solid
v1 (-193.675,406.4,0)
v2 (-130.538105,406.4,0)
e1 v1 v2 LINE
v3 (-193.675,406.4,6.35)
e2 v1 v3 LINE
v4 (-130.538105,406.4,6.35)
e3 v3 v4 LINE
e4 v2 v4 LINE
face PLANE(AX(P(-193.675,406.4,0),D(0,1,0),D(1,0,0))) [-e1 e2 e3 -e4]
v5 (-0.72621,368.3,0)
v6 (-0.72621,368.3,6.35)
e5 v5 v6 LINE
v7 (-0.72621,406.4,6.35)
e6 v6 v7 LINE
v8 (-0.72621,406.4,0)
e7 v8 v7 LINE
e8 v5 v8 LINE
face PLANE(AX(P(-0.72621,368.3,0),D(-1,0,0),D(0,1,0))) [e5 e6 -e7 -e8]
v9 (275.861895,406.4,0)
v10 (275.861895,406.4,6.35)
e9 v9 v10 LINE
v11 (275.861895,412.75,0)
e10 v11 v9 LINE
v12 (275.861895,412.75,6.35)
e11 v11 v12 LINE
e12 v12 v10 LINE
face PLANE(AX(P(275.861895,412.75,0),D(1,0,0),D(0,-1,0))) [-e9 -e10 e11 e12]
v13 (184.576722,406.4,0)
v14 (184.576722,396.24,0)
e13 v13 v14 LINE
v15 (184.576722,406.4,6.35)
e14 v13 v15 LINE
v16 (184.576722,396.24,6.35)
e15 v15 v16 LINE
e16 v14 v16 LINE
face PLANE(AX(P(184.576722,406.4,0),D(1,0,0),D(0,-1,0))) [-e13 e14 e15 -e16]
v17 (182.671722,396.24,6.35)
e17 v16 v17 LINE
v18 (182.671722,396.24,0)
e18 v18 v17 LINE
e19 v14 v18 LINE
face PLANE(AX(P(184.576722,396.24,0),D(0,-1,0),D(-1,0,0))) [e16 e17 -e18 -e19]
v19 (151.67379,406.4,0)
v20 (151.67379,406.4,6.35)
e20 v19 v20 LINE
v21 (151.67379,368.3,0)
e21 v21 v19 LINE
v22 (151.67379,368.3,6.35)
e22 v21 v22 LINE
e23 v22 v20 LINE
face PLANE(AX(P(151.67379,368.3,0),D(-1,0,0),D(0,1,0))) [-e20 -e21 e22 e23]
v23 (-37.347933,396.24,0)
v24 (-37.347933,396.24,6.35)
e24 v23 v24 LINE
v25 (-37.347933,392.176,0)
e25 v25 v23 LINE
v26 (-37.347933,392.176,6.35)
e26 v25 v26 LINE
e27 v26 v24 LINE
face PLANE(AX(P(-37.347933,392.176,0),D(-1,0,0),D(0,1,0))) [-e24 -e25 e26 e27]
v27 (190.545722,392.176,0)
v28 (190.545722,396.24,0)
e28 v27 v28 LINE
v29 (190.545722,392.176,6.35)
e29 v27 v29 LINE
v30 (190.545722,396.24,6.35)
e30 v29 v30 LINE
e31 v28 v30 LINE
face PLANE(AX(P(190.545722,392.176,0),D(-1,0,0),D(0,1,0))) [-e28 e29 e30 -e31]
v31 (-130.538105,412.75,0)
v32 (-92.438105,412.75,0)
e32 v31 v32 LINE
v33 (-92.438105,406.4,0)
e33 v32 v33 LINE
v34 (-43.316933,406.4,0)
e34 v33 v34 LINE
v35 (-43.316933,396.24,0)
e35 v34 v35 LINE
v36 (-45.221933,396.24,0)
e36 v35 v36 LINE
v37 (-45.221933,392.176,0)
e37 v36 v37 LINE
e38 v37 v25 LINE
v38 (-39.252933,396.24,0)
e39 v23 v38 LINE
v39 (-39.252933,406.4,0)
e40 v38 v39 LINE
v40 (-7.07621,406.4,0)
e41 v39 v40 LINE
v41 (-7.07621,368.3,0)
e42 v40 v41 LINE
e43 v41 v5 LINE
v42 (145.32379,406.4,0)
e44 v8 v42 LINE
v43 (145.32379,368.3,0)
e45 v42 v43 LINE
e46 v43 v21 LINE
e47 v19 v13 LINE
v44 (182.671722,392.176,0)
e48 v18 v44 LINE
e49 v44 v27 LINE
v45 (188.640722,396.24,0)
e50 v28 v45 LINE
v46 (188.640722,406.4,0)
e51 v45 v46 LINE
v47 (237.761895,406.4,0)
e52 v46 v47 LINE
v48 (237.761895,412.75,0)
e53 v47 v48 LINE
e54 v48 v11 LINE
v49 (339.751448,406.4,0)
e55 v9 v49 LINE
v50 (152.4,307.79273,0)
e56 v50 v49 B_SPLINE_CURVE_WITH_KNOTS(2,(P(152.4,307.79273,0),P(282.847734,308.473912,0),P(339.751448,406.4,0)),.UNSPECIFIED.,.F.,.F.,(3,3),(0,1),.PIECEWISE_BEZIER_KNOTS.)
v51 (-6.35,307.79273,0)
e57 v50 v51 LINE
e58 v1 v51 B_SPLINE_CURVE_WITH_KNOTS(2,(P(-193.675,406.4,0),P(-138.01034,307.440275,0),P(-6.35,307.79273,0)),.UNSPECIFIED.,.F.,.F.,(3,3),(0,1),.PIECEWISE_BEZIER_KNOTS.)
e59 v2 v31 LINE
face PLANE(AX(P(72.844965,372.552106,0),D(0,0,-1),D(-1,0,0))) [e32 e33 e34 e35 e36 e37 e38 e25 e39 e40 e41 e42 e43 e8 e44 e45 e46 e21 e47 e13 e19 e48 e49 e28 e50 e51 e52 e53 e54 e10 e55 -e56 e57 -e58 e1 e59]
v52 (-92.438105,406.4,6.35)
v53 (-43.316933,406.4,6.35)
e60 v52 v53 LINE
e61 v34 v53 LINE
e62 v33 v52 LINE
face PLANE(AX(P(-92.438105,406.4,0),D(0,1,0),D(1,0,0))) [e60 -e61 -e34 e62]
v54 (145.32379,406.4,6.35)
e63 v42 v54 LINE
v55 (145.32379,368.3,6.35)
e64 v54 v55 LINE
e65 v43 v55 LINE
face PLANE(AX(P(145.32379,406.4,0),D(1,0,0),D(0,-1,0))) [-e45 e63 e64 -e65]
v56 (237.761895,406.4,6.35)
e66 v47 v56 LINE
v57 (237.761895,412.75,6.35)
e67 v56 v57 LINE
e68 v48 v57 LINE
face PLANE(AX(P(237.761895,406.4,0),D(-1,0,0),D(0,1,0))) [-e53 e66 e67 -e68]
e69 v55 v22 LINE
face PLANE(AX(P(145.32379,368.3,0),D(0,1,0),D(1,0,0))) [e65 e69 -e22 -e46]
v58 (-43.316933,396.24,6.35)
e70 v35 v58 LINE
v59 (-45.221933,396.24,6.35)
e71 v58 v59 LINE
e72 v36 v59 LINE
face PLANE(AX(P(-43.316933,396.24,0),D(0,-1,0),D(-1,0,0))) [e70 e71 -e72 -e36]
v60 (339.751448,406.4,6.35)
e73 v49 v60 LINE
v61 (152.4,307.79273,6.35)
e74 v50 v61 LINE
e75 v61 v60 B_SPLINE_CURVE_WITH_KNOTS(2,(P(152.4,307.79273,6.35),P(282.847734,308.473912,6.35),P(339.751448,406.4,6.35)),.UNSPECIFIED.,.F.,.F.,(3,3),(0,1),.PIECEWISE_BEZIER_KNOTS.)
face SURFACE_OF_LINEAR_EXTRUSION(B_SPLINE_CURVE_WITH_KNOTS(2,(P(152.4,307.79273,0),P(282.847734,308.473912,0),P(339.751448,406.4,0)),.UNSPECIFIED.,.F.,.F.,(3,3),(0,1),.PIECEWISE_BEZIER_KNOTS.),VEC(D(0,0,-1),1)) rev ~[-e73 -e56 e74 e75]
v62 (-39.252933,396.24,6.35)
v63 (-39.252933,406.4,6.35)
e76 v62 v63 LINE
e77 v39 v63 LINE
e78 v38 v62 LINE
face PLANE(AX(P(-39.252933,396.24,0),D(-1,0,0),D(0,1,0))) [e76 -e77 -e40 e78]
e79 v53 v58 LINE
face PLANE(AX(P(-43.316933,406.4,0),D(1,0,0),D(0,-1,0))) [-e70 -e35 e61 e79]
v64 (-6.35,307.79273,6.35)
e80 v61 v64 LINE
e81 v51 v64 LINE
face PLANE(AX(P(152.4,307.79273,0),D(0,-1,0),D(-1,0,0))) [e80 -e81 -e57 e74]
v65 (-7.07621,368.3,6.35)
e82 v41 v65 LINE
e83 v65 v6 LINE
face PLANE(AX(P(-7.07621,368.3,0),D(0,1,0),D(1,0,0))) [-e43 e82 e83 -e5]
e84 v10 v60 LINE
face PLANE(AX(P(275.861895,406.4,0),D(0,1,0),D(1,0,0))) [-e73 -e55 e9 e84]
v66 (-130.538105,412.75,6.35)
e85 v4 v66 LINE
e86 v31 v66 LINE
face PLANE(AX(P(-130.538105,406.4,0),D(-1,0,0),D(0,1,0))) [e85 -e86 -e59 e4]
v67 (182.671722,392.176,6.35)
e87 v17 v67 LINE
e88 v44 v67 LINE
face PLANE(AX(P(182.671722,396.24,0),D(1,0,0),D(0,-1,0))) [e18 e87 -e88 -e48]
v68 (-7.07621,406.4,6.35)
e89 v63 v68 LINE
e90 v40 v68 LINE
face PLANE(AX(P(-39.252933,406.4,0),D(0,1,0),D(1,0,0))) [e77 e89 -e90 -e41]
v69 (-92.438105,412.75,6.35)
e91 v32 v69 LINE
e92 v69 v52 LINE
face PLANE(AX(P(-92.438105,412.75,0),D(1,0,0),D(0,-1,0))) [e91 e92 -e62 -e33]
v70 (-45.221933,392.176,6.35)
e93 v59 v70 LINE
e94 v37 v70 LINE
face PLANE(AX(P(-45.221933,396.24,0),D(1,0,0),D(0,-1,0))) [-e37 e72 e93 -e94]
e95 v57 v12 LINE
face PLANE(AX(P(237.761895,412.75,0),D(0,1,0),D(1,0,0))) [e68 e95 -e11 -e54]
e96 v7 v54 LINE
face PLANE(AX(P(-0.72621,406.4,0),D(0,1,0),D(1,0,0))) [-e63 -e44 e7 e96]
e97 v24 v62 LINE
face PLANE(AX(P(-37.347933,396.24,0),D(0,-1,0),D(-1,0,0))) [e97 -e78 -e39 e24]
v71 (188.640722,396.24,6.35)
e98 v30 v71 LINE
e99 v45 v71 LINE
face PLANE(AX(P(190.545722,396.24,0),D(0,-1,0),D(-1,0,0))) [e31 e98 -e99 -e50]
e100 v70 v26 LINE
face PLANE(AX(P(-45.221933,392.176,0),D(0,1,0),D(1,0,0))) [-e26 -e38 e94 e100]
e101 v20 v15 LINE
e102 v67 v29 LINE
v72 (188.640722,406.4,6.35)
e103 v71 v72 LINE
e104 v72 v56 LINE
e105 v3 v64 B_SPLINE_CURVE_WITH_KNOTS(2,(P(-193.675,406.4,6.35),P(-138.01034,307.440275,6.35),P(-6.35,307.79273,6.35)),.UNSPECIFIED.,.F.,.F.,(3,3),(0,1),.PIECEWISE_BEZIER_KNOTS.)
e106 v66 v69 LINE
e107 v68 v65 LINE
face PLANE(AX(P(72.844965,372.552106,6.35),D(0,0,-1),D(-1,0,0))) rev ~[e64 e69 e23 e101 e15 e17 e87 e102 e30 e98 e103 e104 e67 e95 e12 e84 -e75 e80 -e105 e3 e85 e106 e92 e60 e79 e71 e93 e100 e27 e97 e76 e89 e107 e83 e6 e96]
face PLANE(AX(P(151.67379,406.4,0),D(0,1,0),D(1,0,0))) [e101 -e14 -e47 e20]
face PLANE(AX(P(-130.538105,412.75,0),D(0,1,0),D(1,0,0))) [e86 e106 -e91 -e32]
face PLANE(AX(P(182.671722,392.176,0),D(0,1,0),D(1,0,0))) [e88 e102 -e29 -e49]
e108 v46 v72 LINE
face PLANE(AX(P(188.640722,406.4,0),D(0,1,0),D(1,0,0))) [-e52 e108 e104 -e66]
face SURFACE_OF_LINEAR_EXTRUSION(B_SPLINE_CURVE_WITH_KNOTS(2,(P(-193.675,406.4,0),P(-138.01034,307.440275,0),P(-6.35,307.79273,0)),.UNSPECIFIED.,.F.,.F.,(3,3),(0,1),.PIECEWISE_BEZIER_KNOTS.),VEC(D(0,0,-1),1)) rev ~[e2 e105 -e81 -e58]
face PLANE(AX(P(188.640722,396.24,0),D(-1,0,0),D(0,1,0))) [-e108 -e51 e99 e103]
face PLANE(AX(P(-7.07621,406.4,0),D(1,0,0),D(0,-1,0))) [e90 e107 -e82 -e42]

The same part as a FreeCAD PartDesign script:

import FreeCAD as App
import Part
import Sketcher

V = App.Vector
Q = App.Units.Quantity

doc = App.newDocument("Part")
body = doc.addObject("PartDesign::Body", "Body")

# Sketch on XY plane
sketch1 = body.newObject("Sketcher::SketchObject", "Sketch")
sketch1.AttachmentSupport = (doc.getObject("XY_Plane"), [""])
sketch1.MapMode = "FlatFace"
sketch1.addGeometry([
    Part.LineSegment(V(-130.538105, 406.4, 0), V(-193.675, 406.4, 0)),  # 0
    Part.BSplineCurve([V(-193.675, 406.4, 0), V(-138.01034, 307.440275, 0), V(-6.35, 307.79273, 0)], [3, 3], [0, 1], False, 2, [1, 1, 1], False),  # 1
    Part.LineSegment(V(-6.35, 307.79273, 0), V(152.4, 307.79273, 0)),  # 2
    Part.BSplineCurve([V(152.4, 307.79273, 0), V(282.847734, 308.473912, 0), V(339.751448, 406.4, 0)], [3, 3], [0, 1], False, 2, [1, 1, 1], False),  # 3
    Part.LineSegment(V(339.751448, 406.4, 0), V(275.861895, 406.4, 0)),  # 4
    Part.LineSegment(V(275.861895, 406.4, 0), V(275.861895, 412.75, 0)),  # 5
    Part.LineSegment(V(275.861895, 412.75, 0), V(237.761895, 412.75, 0)),  # 6
    Part.LineSegment(V(237.761895, 412.75, 0), V(237.761895, 406.4, 0)),  # 7
    Part.LineSegment(V(237.761895, 406.4, 0), V(188.640722, 406.4, 0)),  # 8
    Part.LineSegment(V(188.640722, 406.4, 0), V(188.640722, 396.24, 0)),  # 9
    Part.LineSegment(V(188.640722, 396.24, 0), V(190.545722, 396.24, 0)),  # 10
    Part.LineSegment(V(190.545722, 396.24, 0), V(190.545722, 392.176, 0)),  # 11
    Part.LineSegment(V(190.545722, 392.176, 0), V(182.671722, 392.176, 0)),  # 12
    Part.LineSegment(V(182.671722, 392.176, 0), V(182.671722, 396.24, 0)),  # 13
    Part.LineSegment(V(182.671722, 396.24, 0), V(184.576722, 396.24, 0)),  # 14
    Part.LineSegment(V(184.576722, 396.24, 0), V(184.576722, 406.4, 0)),  # 15
    Part.LineSegment(V(184.576722, 406.4, 0), V(151.67379, 406.4, 0)),  # 16
    Part.LineSegment(V(151.67379, 406.4, 0), V(151.67379, 368.3, 0)),  # 17
    Part.LineSegment(V(151.67379, 368.3, 0), V(145.32379, 368.3, 0)),  # 18
    Part.LineSegment(V(145.32379, 368.3, 0), V(145.32379, 406.4, 0)),  # 19
    Part.LineSegment(V(145.32379, 406.4, 0), V(-0.72621, 406.4, 0)),  # 20
    Part.LineSegment(V(-0.72621, 406.4, 0), V(-0.72621, 368.3, 0)),  # 21
    Part.LineSegment(V(-0.72621, 368.3, 0), V(-7.07621, 368.3, 0)),  # 22
    Part.LineSegment(V(-7.07621, 368.3, 0), V(-7.07621, 406.4, 0)),  # 23
    Part.LineSegment(V(-7.07621, 406.4, 0), V(-39.252933, 406.4, 0)),  # 24
    Part.LineSegment(V(-39.252933, 406.4, 0), V(-39.252933, 396.24, 0)),  # 25
    Part.LineSegment(V(-39.252933, 396.24, 0), V(-37.347933, 396.24, 0)),  # 26
    Part.LineSegment(V(-37.347933, 396.24, 0), V(-37.347933, 392.176, 0)),  # 27
    Part.LineSegment(V(-37.347933, 392.176, 0), V(-45.221933, 392.176, 0)),  # 28
    Part.LineSegment(V(-45.221933, 392.176, 0), V(-45.221933, 396.24, 0)),  # 29
    Part.LineSegment(V(-45.221933, 396.24, 0), V(-43.316933, 396.24, 0)),  # 30
    Part.LineSegment(V(-43.316933, 396.24, 0), V(-43.316933, 406.4, 0)),  # 31
    Part.LineSegment(V(-43.316933, 406.4, 0), V(-92.438105, 406.4, 0)),  # 32
    Part.LineSegment(V(-92.438105, 406.4, 0), V(-92.438105, 412.75, 0)),  # 33
    Part.LineSegment(V(-92.438105, 412.75, 0), V(-130.538105, 412.75, 0)),  # 34
    Part.LineSegment(V(-130.538105, 412.75, 0), V(-130.538105, 406.4, 0)),  # 35
], False)
sketch1.addConstraint([
    Sketcher.Constraint("Block", 1),
    Sketcher.Constraint("Block", 3),
    Sketcher.Constraint("Coincident", 0, 2, 1, 1),
    Sketcher.Constraint("Coincident", 1, 2, 2, 1),
    Sketcher.Constraint("Coincident", 2, 2, 3, 1),
    Sketcher.Constraint("Coincident", 3, 2, 4, 1),
    Sketcher.Constraint("Coincident", 4, 2, 5, 1),
    Sketcher.Constraint("Coincident", 5, 2, 6, 1),
    Sketcher.Constraint("Coincident", 6, 2, 7, 1),
    Sketcher.Constraint("Coincident", 7, 2, 8, 1),
    Sketcher.Constraint("Coincident", 8, 2, 9, 1),
    Sketcher.Constraint("Coincident", 9, 2, 10, 1),
    Sketcher.Constraint("Coincident", 10, 2, 11, 1),
    Sketcher.Constraint("Coincident", 11, 2, 12, 1),
    Sketcher.Constraint("Coincident", 12, 2, 13, 1),
    Sketcher.Constraint("Coincident", 13, 2, 14, 1),
    Sketcher.Constraint("Coincident", 14, 2, 15, 1),
    Sketcher.Constraint("Coincident", 15, 2, 16, 1),
    Sketcher.Constraint("Coincident", 16, 2, 17, 1),
    Sketcher.Constraint("Coincident", 17, 2, 18, 1),
    Sketcher.Constraint("Coincident", 18, 2, 19, 1),
    Sketcher.Constraint("Coincident", 19, 2, 20, 1),
    Sketcher.Constraint("Coincident", 20, 2, 21, 1),
    Sketcher.Constraint("Coincident", 21, 2, 22, 1),
    Sketcher.Constraint("Coincident", 22, 2, 23, 1),
    Sketcher.Constraint("Coincident", 23, 2, 24, 1),
    Sketcher.Constraint("Coincident", 24, 2, 25, 1),
    Sketcher.Constraint("Coincident", 25, 2, 26, 1),
    Sketcher.Constraint("Coincident", 26, 2, 27, 1),
    Sketcher.Constraint("Coincident", 27, 2, 28, 1),
    Sketcher.Constraint("Coincident", 28, 2, 29, 1),
    Sketcher.Constraint("Coincident", 29, 2, 30, 1),
    Sketcher.Constraint("Coincident", 30, 2, 31, 1),
    Sketcher.Constraint("Coincident", 31, 2, 32, 1),
    Sketcher.Constraint("Coincident", 32, 2, 33, 1),
    Sketcher.Constraint("Coincident", 33, 2, 34, 1),
    Sketcher.Constraint("Coincident", 34, 2, 35, 1),
    Sketcher.Constraint("Coincident", 35, 2, 0, 1),
    Sketcher.Constraint("Horizontal", 0),
    Sketcher.Constraint("Horizontal", 4),
    Sketcher.Constraint("Vertical", 5),
    Sketcher.Constraint("Horizontal", 6),
    Sketcher.Constraint("Vertical", 7),
    Sketcher.Constraint("Horizontal", 8),
    Sketcher.Constraint("Vertical", 9),
    Sketcher.Constraint("Horizontal", 10),
    Sketcher.Constraint("Vertical", 11),
    Sketcher.Constraint("Horizontal", 12),
    Sketcher.Constraint("Vertical", 13),
    Sketcher.Constraint("Horizontal", 14),
    Sketcher.Constraint("Vertical", 15),
    Sketcher.Constraint("Horizontal", 16),
    Sketcher.Constraint("Vertical", 17),
    Sketcher.Constraint("Horizontal", 18),
    Sketcher.Constraint("Vertical", 19),
    Sketcher.Constraint("Horizontal", 20),
    Sketcher.Constraint("Vertical", 21),
    Sketcher.Constraint("Horizontal", 22),
    Sketcher.Constraint("Vertical", 23),
    Sketcher.Constraint("Horizontal", 24),
    Sketcher.Constraint("Vertical", 25),
    Sketcher.Constraint("Horizontal", 26),
    Sketcher.Constraint("Vertical", 27),
    Sketcher.Constraint("Horizontal", 28),
    Sketcher.Constraint("Vertical", 29),
    Sketcher.Constraint("Horizontal", 30),
    Sketcher.Constraint("Vertical", 31),
    Sketcher.Constraint("Horizontal", 32),
    Sketcher.Constraint("Vertical", 33),
    Sketcher.Constraint("Horizontal", 34),
    Sketcher.Constraint("Vertical", 35),
    Sketcher.Constraint("Horizontal", 4, 2, 7, 2),
    Sketcher.Constraint("Horizontal", 10, 2, 13, 2),
    Sketcher.Constraint("Horizontal", 8, 2, 15, 2),
    Sketcher.Constraint("Horizontal", 16, 2, 19, 2),
    Sketcher.Constraint("Horizontal", 18, 2, 21, 2),
    Sketcher.Constraint("Horizontal", 20, 2, 23, 2),
    Sketcher.Constraint("Horizontal", 14, 2, 25, 2),
    Sketcher.Constraint("Horizontal", 12, 2, 27, 2),
    Sketcher.Constraint("Horizontal", 26, 2, 29, 2),
    Sketcher.Constraint("Horizontal", 24, 2, 31, 2),
    Sketcher.Constraint("Horizontal", 6, 2, 33, 2),
    Sketcher.Constraint("Equal", 10, 14),
    Sketcher.Constraint("Equal", 18, 22),
    Sketcher.Constraint("Equal", 14, 26),
    Sketcher.Constraint("Equal", 12, 28),
    Sketcher.Constraint("Equal", 26, 30),
    Sketcher.Constraint("Equal", 8, 32),
    Sketcher.Constraint("Equal", 6, 34),
    Sketcher.Constraint("Equal", 22, 5),
    Sketcher.Constraint("Equal", 34, 17),
    Sketcher.Constraint("DistanceX", 6, 2, 6, 1, Q("1.5 in")),
    Sketcher.Constraint("DistanceY", 9, 2, 9, 1, Q("0.4 in")),
    Sketcher.Constraint("DistanceX", 20, 2, 16, 2, Q("6 in")),
    Sketcher.Constraint("DistanceX", 12, 2, 12, 1, Q("0.31 in")),
    Sketcher.Constraint("DistanceX", 18, 2, 18, 1, Q("0.25 in")),
    Sketcher.Constraint("DistanceY", 11, 2, 11, 1, Q("0.16 in")),
    Sketcher.Constraint("DistanceX", 10, 1, 10, 2, Q("0.075 in")),
    Sketcher.Constraint("DistanceX", 24, 2, 24, 1, Q("1.2668001 in")),
    Sketcher.Constraint("DistanceX", -1, 1, 8, 2, Q("7.4268001 in")),
    Sketcher.Constraint("DistanceX", 0, 2, 0, 1, Q("63.136895 mm")),
    Sketcher.Constraint("DistanceX", 4, 2, 4, 1, Q("63.889554 mm")),
])
pad1 = body.newObject("PartDesign::Pad", "Pad")
pad1.Profile = sketch1
pad1.Length = Q("0.25 in")

doc.recompute()
